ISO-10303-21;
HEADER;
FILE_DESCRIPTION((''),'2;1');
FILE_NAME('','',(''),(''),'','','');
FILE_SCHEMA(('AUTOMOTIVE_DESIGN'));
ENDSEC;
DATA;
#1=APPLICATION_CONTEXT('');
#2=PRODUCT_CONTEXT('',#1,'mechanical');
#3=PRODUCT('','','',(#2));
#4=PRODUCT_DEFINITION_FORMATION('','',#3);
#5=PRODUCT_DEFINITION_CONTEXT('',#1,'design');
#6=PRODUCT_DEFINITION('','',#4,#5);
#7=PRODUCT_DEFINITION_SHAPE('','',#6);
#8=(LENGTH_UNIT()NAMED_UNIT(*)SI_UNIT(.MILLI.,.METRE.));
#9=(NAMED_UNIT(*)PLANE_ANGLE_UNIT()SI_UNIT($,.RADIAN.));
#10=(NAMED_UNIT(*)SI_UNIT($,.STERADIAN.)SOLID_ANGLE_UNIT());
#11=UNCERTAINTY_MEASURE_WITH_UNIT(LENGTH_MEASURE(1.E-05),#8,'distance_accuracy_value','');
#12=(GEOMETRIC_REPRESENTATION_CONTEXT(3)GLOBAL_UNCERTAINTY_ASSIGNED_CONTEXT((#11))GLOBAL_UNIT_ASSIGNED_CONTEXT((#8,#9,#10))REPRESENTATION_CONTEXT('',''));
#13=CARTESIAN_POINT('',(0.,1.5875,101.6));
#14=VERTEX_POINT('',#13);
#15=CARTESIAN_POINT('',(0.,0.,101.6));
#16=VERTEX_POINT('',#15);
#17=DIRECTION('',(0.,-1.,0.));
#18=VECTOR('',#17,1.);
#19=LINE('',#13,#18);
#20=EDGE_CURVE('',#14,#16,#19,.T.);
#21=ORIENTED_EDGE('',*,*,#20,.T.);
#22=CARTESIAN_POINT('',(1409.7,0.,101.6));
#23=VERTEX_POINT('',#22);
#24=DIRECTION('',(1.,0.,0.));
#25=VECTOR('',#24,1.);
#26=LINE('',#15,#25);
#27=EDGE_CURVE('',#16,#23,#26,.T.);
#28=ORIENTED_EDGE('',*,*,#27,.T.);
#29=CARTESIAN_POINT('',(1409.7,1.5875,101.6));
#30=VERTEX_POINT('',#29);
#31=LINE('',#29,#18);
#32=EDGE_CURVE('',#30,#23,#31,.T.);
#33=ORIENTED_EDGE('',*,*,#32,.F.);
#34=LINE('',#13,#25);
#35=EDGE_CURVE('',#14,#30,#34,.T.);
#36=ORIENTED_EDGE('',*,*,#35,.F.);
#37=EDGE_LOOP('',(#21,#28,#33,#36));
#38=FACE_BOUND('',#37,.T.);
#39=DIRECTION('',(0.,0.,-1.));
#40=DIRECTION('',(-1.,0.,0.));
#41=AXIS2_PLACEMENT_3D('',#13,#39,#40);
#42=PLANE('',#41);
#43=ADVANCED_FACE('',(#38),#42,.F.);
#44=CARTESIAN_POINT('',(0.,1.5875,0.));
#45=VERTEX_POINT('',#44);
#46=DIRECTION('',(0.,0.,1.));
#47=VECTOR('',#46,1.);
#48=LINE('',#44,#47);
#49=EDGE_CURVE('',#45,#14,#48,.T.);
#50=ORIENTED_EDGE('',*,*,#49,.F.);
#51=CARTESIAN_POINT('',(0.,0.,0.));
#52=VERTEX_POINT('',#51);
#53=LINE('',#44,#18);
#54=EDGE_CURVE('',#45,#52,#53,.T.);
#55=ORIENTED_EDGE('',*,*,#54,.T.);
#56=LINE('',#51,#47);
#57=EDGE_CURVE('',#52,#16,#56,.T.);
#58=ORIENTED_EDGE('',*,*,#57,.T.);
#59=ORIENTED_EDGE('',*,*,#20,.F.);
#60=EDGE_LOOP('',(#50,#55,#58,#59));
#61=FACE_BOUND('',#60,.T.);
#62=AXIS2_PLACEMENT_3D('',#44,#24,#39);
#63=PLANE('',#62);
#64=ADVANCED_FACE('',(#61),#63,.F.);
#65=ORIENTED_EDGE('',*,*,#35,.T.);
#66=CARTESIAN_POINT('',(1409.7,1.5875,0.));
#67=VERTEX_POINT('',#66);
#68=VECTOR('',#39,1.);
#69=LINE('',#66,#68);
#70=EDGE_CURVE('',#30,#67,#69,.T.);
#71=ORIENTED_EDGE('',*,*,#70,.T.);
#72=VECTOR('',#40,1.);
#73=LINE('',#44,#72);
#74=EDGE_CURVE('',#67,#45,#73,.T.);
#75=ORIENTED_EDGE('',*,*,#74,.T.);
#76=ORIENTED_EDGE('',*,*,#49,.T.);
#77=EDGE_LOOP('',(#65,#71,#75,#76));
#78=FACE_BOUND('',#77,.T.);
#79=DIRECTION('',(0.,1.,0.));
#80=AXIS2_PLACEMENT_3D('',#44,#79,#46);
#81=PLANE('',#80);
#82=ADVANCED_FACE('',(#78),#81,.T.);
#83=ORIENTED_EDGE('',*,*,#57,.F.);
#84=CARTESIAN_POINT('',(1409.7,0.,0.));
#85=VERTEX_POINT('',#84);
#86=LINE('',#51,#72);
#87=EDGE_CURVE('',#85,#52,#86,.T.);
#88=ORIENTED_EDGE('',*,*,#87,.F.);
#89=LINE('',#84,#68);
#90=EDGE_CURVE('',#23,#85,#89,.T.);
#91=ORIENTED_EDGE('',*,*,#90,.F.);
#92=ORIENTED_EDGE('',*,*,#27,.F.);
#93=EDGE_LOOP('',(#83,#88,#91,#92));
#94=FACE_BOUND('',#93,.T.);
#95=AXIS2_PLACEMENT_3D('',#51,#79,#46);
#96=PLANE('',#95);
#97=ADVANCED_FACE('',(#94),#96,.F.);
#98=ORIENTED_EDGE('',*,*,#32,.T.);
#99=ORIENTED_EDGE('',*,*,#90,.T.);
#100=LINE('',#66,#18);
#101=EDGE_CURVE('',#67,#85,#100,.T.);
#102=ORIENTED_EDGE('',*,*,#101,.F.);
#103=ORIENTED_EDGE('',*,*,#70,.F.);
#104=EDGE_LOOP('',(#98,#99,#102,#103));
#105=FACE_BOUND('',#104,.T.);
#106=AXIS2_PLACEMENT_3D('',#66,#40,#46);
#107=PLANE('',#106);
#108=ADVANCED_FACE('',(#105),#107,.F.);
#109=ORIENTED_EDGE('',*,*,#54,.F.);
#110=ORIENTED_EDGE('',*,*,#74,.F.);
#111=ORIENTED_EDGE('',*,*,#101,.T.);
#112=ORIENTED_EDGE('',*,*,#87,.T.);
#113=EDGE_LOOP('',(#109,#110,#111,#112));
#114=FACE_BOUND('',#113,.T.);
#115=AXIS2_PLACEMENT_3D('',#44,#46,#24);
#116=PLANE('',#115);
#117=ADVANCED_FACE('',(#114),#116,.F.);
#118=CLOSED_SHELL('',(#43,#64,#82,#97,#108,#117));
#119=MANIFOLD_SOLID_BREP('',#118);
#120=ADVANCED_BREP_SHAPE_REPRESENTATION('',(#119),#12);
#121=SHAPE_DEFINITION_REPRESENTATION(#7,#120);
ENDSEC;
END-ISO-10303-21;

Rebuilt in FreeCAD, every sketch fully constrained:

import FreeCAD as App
import Part
import Sketcher
from FreeCAD import Vector
Q = App.Units.Quantity


def add_polygon(sketch, points):
    """Adds a closed chain of lines whose ends are joined by coincident constraints."""
    first, n = sketch.GeometryCount, len(points)
    for a, b in zip(points, points[1:] + points[:1]):
        sketch.addGeometry(Part.LineSegment(App.Vector(*a, 0), App.Vector(*b, 0)), False)
    for i in range(n):
        sketch.addConstraint(Sketcher.Constraint("Coincident", first + i, 2, first + (i + 1) % n, 1))

doc = App.newDocument("Part")
body = doc.addObject("PartDesign::Body", "Body")

# Sketch on XZ plane
sketch1 = body.newObject("Sketcher::SketchObject", "Sketch")
sketch1.AttachmentSupport = (doc.getObject("XZ_Plane"), [""])
sketch1.MapMode = "FlatFace"
add_polygon(sketch1, [(0, 0), (0, 101.6), (1409.7, 101.6), (1409.7, 0)])  # lines 0-3
sketch1.addConstraint([
    Sketcher.Constraint("Vertical", 0),
    Sketcher.Constraint("Horizontal", 1),
    Sketcher.Constraint("Vertical", 2),
    Sketcher.Constraint("Horizontal", 3),
    Sketcher.Constraint("Coincident", 3, 2, -1, 1),
    Sketcher.Constraint("DistanceY", 0, 1, 0, 2, Q("4 in")),
    Sketcher.Constraint("DistanceX", 1, 1, 1, 2, Q("55.5 in")),
])
pad1 = body.newObject("PartDesign::Pad", "Pad")
pad1.Profile = sketch1
pad1.Length = Q("0.0625 in")
pad1.Reversed = True

doc.recompute()
